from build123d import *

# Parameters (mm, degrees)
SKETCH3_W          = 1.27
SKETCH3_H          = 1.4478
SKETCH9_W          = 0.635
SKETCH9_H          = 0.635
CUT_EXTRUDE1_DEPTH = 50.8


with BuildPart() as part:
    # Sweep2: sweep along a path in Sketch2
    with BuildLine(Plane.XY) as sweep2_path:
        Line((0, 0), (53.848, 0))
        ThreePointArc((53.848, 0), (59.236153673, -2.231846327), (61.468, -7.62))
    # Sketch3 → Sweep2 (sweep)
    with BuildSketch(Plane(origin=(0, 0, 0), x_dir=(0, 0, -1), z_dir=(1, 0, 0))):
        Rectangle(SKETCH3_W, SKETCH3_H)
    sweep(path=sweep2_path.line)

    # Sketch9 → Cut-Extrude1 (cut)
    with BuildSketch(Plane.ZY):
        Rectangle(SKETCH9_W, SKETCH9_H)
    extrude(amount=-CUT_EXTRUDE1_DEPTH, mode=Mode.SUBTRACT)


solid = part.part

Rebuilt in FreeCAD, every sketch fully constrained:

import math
import FreeCAD as App
import Part
import Sketcher
from FreeCAD import Vector
Q = App.Units.Quantity


def add_polygon(sketch, points):
    """Adds a closed chain of lines whose ends are joined by coincident constraints."""
    first, n = sketch.GeometryCount, len(points)
    for a, b in zip(points, points[1:] + points[:1]):
        sketch.addGeometry(Part.LineSegment(App.Vector(*a, 0), App.Vector(*b, 0)), False)
    for i in range(n):
        sketch.addConstraint(Sketcher.Constraint("Coincident", first + i, 2, first + (i + 1) % n, 1))

doc = App.newDocument("Part")
body = doc.addObject("PartDesign::Body", "Body")

sketch1 = body.newObject("Sketcher::SketchObject", "Sketch")
sketch1.AttachmentSupport = (doc.getObject("YZ_Plane"), [""])
sketch1.MapMode = "FlatFace"
add_polygon(sketch1, [(0.7, 0.6), (-0.7, 0.6), (-0.7, -0.6), (0.7, -0.6)])
sketch1.addConstraint([
    Sketcher.Constraint("Horizontal", 0),
    Sketcher.Constraint("Vertical", 1),
    Sketcher.Constraint("Horizontal", 2),
    Sketcher.Constraint("Vertical", 3),
    Sketcher.Constraint("Symmetric", 0, 2, 2, 2, -1, 1),
    Sketcher.Constraint("DistanceY", 1, 2, 1, 1, Q("0.05 in")),
    Sketcher.Constraint("DistanceX", 0, 2, 0, 1, Q("0.057 in")),
])

sketch2 = body.newObject("Sketcher::SketchObject", "Sketch001")
sketch2.AttachmentSupport = (doc.getObject("XY_Plane"), [""])
sketch2.MapMode = "FlatFace"
sketch2.addGeometry([
    Part.LineSegment(Vector(0, 0, 0), Vector(54, 0, 0)),
    Part.ArcOfCircle(Part.Circle(Vector(54, -8, 0), Vector(0, 0, 1), 8), math.radians(0), math.radians(90)),
], False)
sketch2.addConstraint([
    Sketcher.Constraint("Tangent", 0, 2, 1, 2),
    Sketcher.Constraint("Horizontal", 0),
    Sketcher.Constraint("Coincident", 0, 1, -1, 1),
    Sketcher.Constraint("Radius", 1, Q("0.3 in")),
    Sketcher.Constraint("DistanceX", 0, 1, 0, 2, Q("2.12 in")),
    Sketcher.Constraint("DistanceY", 1, 1, -1, 1, Q("0.3 in")),
])
doc.recompute()

additivepipe = body.newObject("PartDesign::AdditivePipe", "AdditivePipe")
additivepipe.Profile = sketch1
additivepipe.Spine = (sketch2, ["Edge1", "Edge2"])

sketch3 = body.newObject("Sketcher::SketchObject", "Sketch002")
sketch3.AttachmentSupport = (doc.getObject("YZ_Plane"), [""])
sketch3.MapMode = "FlatFace"
add_polygon(sketch3, [(0.3, -0.3), (-0.3, -0.3), (-0.3, 0.3), (0.3, 0.3)])
sketch3.addConstraint([
    Sketcher.Constraint("Horizontal", 0),
    Sketcher.Constraint("Vertical", 1),
    Sketcher.Constraint("Horizontal", 2),
    Sketcher.Constraint("Vertical", 3),
    Sketcher.Constraint("Symmetric", 0, 2, 2, 2, -1, 1),
    Sketcher.Constraint("Equal", 2, 1),
    Sketcher.Constraint("DistanceX", 0, 2, 0, 1, Q("0.025 in")),
])
pocket1 = body.newObject("PartDesign::Pocket", "Pocket")
pocket1.Profile = sketch3
pocket1.Length = Q("2 in")
pocket1.Reversed = True

doc.recompute()
